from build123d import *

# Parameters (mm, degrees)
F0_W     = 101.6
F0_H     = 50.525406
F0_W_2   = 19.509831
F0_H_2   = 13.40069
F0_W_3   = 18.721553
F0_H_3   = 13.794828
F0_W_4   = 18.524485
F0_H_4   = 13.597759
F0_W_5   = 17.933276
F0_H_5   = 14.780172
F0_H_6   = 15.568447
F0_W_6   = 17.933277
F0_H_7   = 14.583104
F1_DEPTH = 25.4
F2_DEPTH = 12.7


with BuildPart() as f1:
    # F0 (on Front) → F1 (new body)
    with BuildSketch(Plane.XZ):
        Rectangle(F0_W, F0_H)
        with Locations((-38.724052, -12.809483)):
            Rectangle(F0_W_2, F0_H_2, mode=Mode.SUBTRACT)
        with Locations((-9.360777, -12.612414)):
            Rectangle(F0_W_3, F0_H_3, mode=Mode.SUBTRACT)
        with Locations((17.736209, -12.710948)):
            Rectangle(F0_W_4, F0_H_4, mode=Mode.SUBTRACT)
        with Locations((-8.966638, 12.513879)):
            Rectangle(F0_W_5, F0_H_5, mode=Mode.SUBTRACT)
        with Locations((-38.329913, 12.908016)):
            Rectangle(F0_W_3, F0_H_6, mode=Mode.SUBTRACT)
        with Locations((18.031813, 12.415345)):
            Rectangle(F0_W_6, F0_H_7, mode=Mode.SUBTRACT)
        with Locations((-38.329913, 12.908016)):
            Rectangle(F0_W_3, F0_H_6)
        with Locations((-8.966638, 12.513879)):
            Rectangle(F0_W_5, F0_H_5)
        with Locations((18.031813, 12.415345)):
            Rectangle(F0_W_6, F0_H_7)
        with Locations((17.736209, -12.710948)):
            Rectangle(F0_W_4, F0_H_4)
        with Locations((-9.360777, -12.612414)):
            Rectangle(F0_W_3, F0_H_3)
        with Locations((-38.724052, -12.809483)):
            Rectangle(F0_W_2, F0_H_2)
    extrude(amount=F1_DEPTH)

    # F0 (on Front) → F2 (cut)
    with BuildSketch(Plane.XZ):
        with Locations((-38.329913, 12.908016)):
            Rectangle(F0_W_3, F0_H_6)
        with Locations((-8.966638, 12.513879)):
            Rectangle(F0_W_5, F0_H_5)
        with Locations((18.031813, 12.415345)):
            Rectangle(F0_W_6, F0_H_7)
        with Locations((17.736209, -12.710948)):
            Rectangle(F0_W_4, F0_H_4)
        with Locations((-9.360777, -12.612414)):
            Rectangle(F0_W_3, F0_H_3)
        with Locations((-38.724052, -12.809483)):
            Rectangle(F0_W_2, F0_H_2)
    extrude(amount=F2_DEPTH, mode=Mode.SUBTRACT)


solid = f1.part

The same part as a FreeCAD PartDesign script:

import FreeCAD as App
import Part
import Sketcher

V = App.Vector
Q = App.Units.Quantity


def add_polygon(sketch, points):
    """Adds a closed chain of lines whose ends are joined by coincident constraints."""
    first, n = sketch.GeometryCount, len(points)
    for a, b in zip(points, points[1:] + points[:1]):
        sketch.addGeometry(Part.LineSegment(App.Vector(*a, 0), App.Vector(*b, 0)), False)
    for i in range(n):
        sketch.addConstraint(Sketcher.Constraint("Coincident", first + i, 2, first + (i + 1) % n, 1))

doc = App.newDocument("Part")
body = doc.addObject("PartDesign::Body", "Body")

# Sketch on XZ plane
sketch1 = body.newObject("Sketcher::SketchObject", "Sketch")
sketch1.AttachmentSupport = (doc.getObject("XZ_Plane"), [""])
sketch1.MapMode = "FlatFace"
add_polygon(sketch1, [(-50.8, 25.262703), (-50.8, -25.262703), (50.8, -25.262703), (50.8, 25.262703)])  # lines 0-3
sketch1.addConstraint([
    Sketcher.Constraint("Vertical", 0),
    Sketcher.Constraint("Horizontal", 1),
    Sketcher.Constraint("Vertical", 2),
    Sketcher.Constraint("Horizontal", 3),
    Sketcher.Constraint("Symmetric", 0, 2, 2, 2, -1, 1),
    Sketcher.Constraint("DistanceX", 1, 1, 1, 2, Q("4 in")),
    Sketcher.Constraint("DistanceY", 0, 2, 0, 1, 50.525406),
])
pad1 = body.newObject("PartDesign::Pad", "Pad")
pad1.Profile = sketch1
pad1.Length = Q("1 in")

# Sketch on XZ plane
sketch2 = body.newObject("Sketcher::SketchObject", "Sketch001")
sketch2.AttachmentSupport = (doc.getObject("XZ_Plane"), [""])
sketch2.MapMode = "FlatFace"
add_polygon(sketch2, [(-47.690689, 20.692239), (-47.690689, 5.123793), (-28.969137, 5.123793), (-28.969137, 20.692239)])  # lines 0-3
add_polygon(sketch2, [(-17.933276, 19.903965), (-17.933276, 5.123793), (0, 5.123793), (0, 19.903965)])  # lines 4-7
add_polygon(sketch2, [(9.065174, 19.706897), (9.065174, 5.123793), (26.998452, 5.123793), (26.998452, 19.706897)])  # lines 8-11
add_polygon(sketch2, [(8.473966, -5.912069), (8.473966, -19.509828), (26.998452, -19.509828), (26.998452, -5.912069)])  # lines 12-15
add_polygon(sketch2, [(-18.721553, -5.715), (-18.721553, -19.509828), (0, -19.509828), (0, -5.715)])  # lines 16-19
add_polygon(sketch2, [(-48.478968, -6.109138), (-48.478968, -19.509828), (-28.969137, -19.509828), (-28.969137, -6.109138)])  # lines 20-23
sketch2.addConstraint([
    Sketcher.Constraint("Vertical", 0),
    Sketcher.Constraint("Horizontal", 1),
    Sketcher.Constraint("Vertical", 2),
    Sketcher.Constraint("Horizontal", 3),
    Sketcher.Constraint("Vertical", 4),
    Sketcher.Constraint("Horizontal", 5),
    Sketcher.Constraint("Vertical", 6),
    Sketcher.Constraint("Horizontal", 7),
    Sketcher.Constraint("Vertical", 8),
    Sketcher.Constraint("Horizontal", 9),
    Sketcher.Constraint("Vertical", 10),
    Sketcher.Constraint("Horizontal", 11),
    Sketcher.Constraint("Vertical", 12),
    Sketcher.Constraint("Horizontal", 13),
    Sketcher.Constraint("Vertical", 14),
    Sketcher.Constraint("Horizontal", 15),
    Sketcher.Constraint("Vertical", 16),
    Sketcher.Constraint("Horizontal", 17),
    Sketcher.Constraint("Vertical", 18),
    Sketcher.Constraint("Horizontal", 19),
    Sketcher.Constraint("Vertical", 20),
    Sketcher.Constraint("Horizontal", 21),
    Sketcher.Constraint("Vertical", 22),
    Sketcher.Constraint("Horizontal", 23),
    Sketcher.Constraint("PointOnObject", 5, 2, -2),
    Sketcher.Constraint("PointOnObject", 17, 2, -2),
    Sketcher.Constraint("Horizontal", 1, 2, 4, 2),
    Sketcher.Constraint("Horizontal", 5, 2, 8, 2),
    Sketcher.Constraint("Horizontal", 13, 2, 16, 2),
    Sketcher.Constraint("Horizontal", 17, 2, 20, 2),
    Sketcher.Constraint("Vertical", 10, 2, 13, 2),
    Sketcher.Constraint("Vertical", 2, 2, 21, 2),
    Sketcher.Constraint("Equal", 7, 9),
    Sketcher.Constraint("Equal", 3, 17),
    Sketcher.Constraint("DistanceY", 18, 2, -1, 1, Q("0.225 in")),
    Sketcher.Constraint("DistanceX", 21, 1, 21, 2, 19.509831),
    Sketcher.Constraint("DistanceY", 12, 2, 12, 1, 13.597759),
    Sketcher.Constraint("DistanceY", 20, 2, 20, 1, 13.40069),
    Sketcher.Constraint("DistanceX", 1, 1, 1, 2, 18.721553),
    Sketcher.Constraint("DistanceX", 5, 1, 5, 2, 17.933276),
    Sketcher.Constraint("DistanceX", 13, 1, 13, 2, 18.524485),
    Sketcher.Constraint("DistanceY", 0, 2, 0, 1, 15.568447),
    Sketcher.Constraint("DistanceY", 4, 2, 4, 1, 14.780172),
    Sketcher.Constraint("DistanceY", 8, 2, 8, 1, 14.583104),
    Sketcher.Constraint("DistanceY", 16, 2, 16, 1, 13.794828),
    Sketcher.Constraint("DistanceX", 0, 2, -1, 1, 47.690689),
    Sketcher.Constraint("DistanceY", -1, 1, 2, 2, 20.692239),
    Sketcher.Constraint("DistanceX", -1, 1, 9, 2, 26.998452),
])
pocket1 = body.newObject("PartDesign::Pocket", "Pocket")
pocket1.Profile = sketch2
pocket1.Length = Q("0.5 in")
pocket1.Reversed = True

doc.recompute()
